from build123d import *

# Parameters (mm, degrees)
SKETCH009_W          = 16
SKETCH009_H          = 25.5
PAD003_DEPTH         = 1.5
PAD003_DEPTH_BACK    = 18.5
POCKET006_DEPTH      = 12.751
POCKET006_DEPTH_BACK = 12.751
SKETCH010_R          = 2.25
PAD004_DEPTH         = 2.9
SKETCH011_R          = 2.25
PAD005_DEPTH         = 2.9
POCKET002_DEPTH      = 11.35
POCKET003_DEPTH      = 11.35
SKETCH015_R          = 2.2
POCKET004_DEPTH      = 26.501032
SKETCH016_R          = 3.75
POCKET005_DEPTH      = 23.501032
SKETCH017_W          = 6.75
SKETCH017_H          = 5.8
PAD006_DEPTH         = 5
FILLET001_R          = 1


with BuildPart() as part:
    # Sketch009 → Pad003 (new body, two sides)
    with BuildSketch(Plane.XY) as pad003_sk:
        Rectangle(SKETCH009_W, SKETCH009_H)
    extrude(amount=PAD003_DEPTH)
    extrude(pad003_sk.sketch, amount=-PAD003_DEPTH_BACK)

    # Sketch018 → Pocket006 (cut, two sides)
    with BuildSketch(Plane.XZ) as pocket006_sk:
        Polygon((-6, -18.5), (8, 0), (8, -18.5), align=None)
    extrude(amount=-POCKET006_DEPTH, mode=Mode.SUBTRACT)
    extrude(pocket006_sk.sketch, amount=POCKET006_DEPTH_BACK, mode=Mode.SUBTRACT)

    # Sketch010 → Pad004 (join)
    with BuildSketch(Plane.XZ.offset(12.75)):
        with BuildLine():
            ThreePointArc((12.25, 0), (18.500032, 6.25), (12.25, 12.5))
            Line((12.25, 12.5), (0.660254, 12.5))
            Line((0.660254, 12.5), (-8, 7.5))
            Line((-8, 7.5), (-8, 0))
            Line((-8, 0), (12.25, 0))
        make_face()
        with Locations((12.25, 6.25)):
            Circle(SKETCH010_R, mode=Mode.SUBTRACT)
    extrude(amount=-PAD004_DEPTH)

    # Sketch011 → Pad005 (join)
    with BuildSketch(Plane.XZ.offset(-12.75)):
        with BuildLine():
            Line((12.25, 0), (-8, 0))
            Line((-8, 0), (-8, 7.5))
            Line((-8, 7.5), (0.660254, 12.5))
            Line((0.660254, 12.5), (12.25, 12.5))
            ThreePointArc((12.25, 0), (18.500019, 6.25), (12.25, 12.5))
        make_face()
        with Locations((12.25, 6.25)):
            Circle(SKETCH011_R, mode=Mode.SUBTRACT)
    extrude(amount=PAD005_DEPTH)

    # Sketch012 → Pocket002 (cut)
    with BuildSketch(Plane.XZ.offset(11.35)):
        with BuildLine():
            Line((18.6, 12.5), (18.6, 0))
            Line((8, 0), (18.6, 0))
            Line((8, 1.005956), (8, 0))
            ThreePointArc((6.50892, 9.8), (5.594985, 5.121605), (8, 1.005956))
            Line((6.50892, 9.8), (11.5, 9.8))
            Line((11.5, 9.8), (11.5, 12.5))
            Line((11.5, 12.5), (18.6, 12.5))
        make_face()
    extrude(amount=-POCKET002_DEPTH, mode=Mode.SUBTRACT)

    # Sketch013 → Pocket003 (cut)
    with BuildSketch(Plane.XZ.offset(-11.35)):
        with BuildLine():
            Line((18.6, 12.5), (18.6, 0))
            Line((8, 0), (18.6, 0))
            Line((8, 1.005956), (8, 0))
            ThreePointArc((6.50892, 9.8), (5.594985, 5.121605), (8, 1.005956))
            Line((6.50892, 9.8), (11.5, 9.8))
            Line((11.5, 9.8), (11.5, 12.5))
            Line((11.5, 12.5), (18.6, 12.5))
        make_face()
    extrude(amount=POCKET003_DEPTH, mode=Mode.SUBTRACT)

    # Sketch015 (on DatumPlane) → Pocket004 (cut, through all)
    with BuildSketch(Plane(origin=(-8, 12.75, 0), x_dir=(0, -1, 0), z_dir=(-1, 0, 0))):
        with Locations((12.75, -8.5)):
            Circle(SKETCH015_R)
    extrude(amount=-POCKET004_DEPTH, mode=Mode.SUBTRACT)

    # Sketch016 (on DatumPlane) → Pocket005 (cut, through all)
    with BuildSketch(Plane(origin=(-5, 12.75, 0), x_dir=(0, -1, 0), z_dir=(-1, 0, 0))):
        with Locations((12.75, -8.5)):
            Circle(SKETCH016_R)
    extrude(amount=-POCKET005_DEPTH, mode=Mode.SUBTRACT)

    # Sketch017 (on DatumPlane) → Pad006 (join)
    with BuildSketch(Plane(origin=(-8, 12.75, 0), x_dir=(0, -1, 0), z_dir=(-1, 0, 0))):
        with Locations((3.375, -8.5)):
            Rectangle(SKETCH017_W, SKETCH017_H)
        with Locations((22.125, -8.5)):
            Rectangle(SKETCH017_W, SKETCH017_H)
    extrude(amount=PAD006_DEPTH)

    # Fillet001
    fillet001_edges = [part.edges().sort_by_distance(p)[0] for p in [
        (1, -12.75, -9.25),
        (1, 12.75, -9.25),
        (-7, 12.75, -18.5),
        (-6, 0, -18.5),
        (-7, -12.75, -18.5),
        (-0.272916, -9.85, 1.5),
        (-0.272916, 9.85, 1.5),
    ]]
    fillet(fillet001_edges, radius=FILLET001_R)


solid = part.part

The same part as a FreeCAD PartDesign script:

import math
import FreeCAD as App
import Part
import Sketcher
Q = App.Units.Quantity


def edges_at(feature, points):
    """Names of the edges that pass closest to the given points."""
    edges = feature.Shape.Edges
    near = lambda p: min(range(len(edges)), key=lambda i: edges[i].distToShape(Part.Vertex(*p))[0])
    return sorted({f"Edge{near(p) + 1}" for p in points})


def add_polygon(sketch, points):
    """Adds a closed chain of lines whose ends are joined by coincident constraints."""
    first, n = sketch.GeometryCount, len(points)
    for a, b in zip(points, points[1:] + points[:1]):
        sketch.addGeometry(Part.LineSegment(App.Vector(*a, 0), App.Vector(*b, 0)), False)
    for i in range(n):
        sketch.addConstraint(Sketcher.Constraint("Coincident", first + i, 2, first + (i + 1) % n, 1))

doc = App.newDocument("Part")
body = doc.addObject("PartDesign::Body", "Body")

# Sketch on XY plane
sketch1 = body.newObject("Sketcher::SketchObject", "Sketch")
sketch1.AttachmentSupport = (doc.getObject("XY_Plane"), [""])
sketch1.MapMode = "FlatFace"
add_polygon(sketch1, [(-8, 13), (-8, -13), (8, -13), (8, 13)])  # lines 0-3
sketch1.addConstraint(Sketcher.Constraint("Vertical", 0))
sketch1.addConstraint(Sketcher.Constraint("Horizontal", 1))
sketch1.addConstraint(Sketcher.Constraint("Vertical", 2))
sketch1.addConstraint(Sketcher.Constraint("Horizontal", 3))
sketch1.addConstraint(Sketcher.Constraint("Symmetric", 0, 2, 2, 2, -1, 1))
sketch1.addConstraint(Sketcher.Constraint("DistanceX", 1, 1, 1, 2, 16.0))
sketch1.addConstraint(Sketcher.Constraint("DistanceY", 0, 2, 0, 1, 25.5))
pad1 = body.newObject("PartDesign::Pad", "Pad")
pad1.Profile = sketch1
pad1.Type = "TwoLengths"
pad1.Length = 1.5
pad1.Length2 = 18.5

# Sketch on XZ plane
sketch2 = body.newObject("Sketcher::SketchObject", "Sketch001")
sketch2.AttachmentSupport = (doc.getObject("XZ_Plane"), [""])
sketch2.MapMode = "FlatFace"
add_polygon(sketch2, [(8, 0), (-6, -18), (8, -18)])  # lines 0-2
sketch2.addConstraint(Sketcher.Constraint("Horizontal", 1))
sketch2.addConstraint(Sketcher.Constraint("Vertical", 2))
sketch2.addConstraint(Sketcher.Constraint("PointOnObject", 2, 2, -1))
sketch2.addConstraint(Sketcher.Constraint("DistanceX", 1, 1, 1, 2, 14.0))
sketch2.addConstraint(Sketcher.Constraint("DistanceY", 2, 1, 2, 2, 18.5))
sketch2.addConstraint(Sketcher.Constraint("DistanceX", 0, 2, -1, 1, 6.0))
pocket1 = body.newObject("PartDesign::Pocket", "Pocket")
pocket1.Profile = sketch2
pocket1.Type = "ThroughAll"
pocket1.Midplane = True

# Sketch on XZ plane
sketch3 = body.newObject("Sketcher::SketchObject", "Sketch002")
sketch3.AttachmentSupport = (doc.getObject("XZ_Plane"), [""])
sketch3.MapMode = "FlatFace"
sketch3.AttachmentOffset = App.Placement(App.Vector(0, 0, 12.75), App.Rotation())
sketch3.addGeometry(Part.ArcOfCircle(Part.Circle(App.Vector(12.3, 6.2, 0), App.Vector(0, 0, 1), 6.2), math.radians(-90), math.radians(90)), False)
sketch3.addGeometry(Part.LineSegment(App.Vector(12.2, 12.5, 0), App.Vector(0.7, 12.5, 0)), False)
sketch3.addGeometry(Part.LineSegment(App.Vector(0.7, 12.5, 0), App.Vector(-8, 7.5, 0)), False)
sketch3.addGeometry(Part.LineSegment(App.Vector(-8, 7.5, 0), App.Vector(-8, 0, 0)), False)
sketch3.addGeometry(Part.LineSegment(App.Vector(-8, 0, 0), App.Vector(12.2, 0, 0)), False)
sketch3.addGeometry(Part.Circle(App.Vector(12.2, 6.2, 0), App.Vector(0, 0, 1), 2.2), False)
sketch3.addConstraint(Sketcher.Constraint("Coincident", 0, 2, 1, 1))
sketch3.addConstraint(Sketcher.Constraint("Coincident", 1, 2, 2, 1))
sketch3.addConstraint(Sketcher.Constraint("Coincident", 2, 2, 3, 1))
sketch3.addConstraint(Sketcher.Constraint("Coincident", 3, 2, 4, 1))
sketch3.addConstraint(Sketcher.Constraint("Coincident", 4, 2, 0, 1))
sketch3.addConstraint(Sketcher.Constraint("Horizontal", 1))
sketch3.addConstraint(Sketcher.Constraint("Vertical", 3))
sketch3.addConstraint(Sketcher.Constraint("Horizontal", 4))
sketch3.addConstraint(Sketcher.Constraint("PointOnObject", 3, 2, -1))
sketch3.addConstraint(Sketcher.Constraint("Horizontal", 0, 3, 5, 3))
sketch3.addConstraint(Sketcher.Constraint("Vertical", 5, 3, 0, 2))
sketch3.addConstraint(Sketcher.Constraint("Vertical", 0, 2, 4, 2))
sketch3.addConstraint(Sketcher.Constraint("Diameter", 5, 4.5))
sketch3.addConstraint(Sketcher.Constraint("Angle", 2, Q("-150 deg")))
sketch3.addConstraint(Sketcher.Constraint("Radius", 0, 6.25))
sketch3.addConstraint(Sketcher.Constraint("Distance", 2, 10.0))
sketch3.addConstraint(Sketcher.Constraint("DistanceX", 2, 2, -1, 1, 8.0))
sketch3.addConstraint(Sketcher.Constraint("DistanceX", 4, 1, 4, 2, 20.25))
sketch3.addConstraint(Sketcher.Constraint("DistanceX", -1, 1, 0, 3, 12.250032))
pad2 = body.newObject("PartDesign::Pad", "Pad001")
pad2.Profile = sketch3
pad2.Length = 2.9
pad2.Reversed = True

# Sketch on XZ plane
sketch4 = body.newObject("Sketcher::SketchObject", "Sketch003")
sketch4.AttachmentSupport = (doc.getObject("XZ_Plane"), [""])
sketch4.MapMode = "FlatFace"
sketch4.AttachmentOffset = App.Placement(App.Vector(0, 0, -12.75), App.Rotation())
sketch4.addGeometry(Part.LineSegment(App.Vector(-8, 0, 0), App.Vector(12.2, 0, 0)), False)
sketch4.addGeometry(Part.ArcOfCircle(Part.Circle(App.Vector(12.3, 6.2, 0), App.Vector(0, 0, 1), 6.2), math.radians(-90), math.radians(90)), False)
sketch4.addGeometry(Part.LineSegment(App.Vector(12.2, 12.5, 0), App.Vector(0.7, 12.5, 0)), False)
sketch4.addGeometry(Part.LineSegment(App.Vector(0.7, 12.5, 0), App.Vector(-8, 7.5, 0)), False)
sketch4.addGeometry(Part.LineSegment(App.Vector(-8, 7.5, 0), App.Vector(-8, 0, 0)), False)
sketch4.addGeometry(Part.Circle(App.Vector(12.2, 6.2, 0), App.Vector(0, 0, 1), 2.2), False)
sketch4.addConstraint(Sketcher.Constraint("Coincident", 0, 2, 1, 1))
sketch4.addConstraint(Sketcher.Constraint("Coincident", 1, 2, 2, 1))
sketch4.addConstraint(Sketcher.Constraint("Coincident", 2, 2, 3, 1))
sketch4.addConstraint(Sketcher.Constraint("Coincident", 3, 2, 4, 1))
sketch4.addConstraint(Sketcher.Constraint("Coincident", 4, 2, 0, 1))
sketch4.addConstraint(Sketcher.Constraint("Horizontal", 0))
sketch4.addConstraint(Sketcher.Constraint("Horizontal", 2))
sketch4.addConstraint(Sketcher.Constraint("Vertical", 4))
sketch4.addConstraint(Sketcher.Constraint("PointOnObject", 0, 2, -1))
sketch4.addConstraint(Sketcher.Constraint("Horizontal", 1, 3, 5, 3))
sketch4.addConstraint(Sketcher.Constraint("Vertical", 5, 3, 0, 2))
sketch4.addConstraint(Sketcher.Constraint("Vertical", 0, 2, 1, 2))
sketch4.addConstraint(Sketcher.Constraint("Diameter", 5, 4.5))
sketch4.addConstraint(Sketcher.Constraint("Angle", 3, Q("-150 deg")))
sketch4.addConstraint(Sketcher.Constraint("Radius", 1, 6.25))
sketch4.addConstraint(Sketcher.Constraint("Distance", 3, 10.0))
sketch4.addConstraint(Sketcher.Constraint("DistanceX", 3, 2, -1, 1, 8.0))
sketch4.addConstraint(Sketcher.Constraint("DistanceX", 0, 1, 0, 2, 20.25))
sketch4.addConstraint(Sketcher.Constraint("DistanceX", -1, 1, 1, 3, 12.250019))
pad3 = body.newObject("PartDesign::Pad", "Pad002")
pad3.Profile = sketch4
pad3.Length = 2.9

# Sketch on XZ plane
sketch5 = body.newObject("Sketcher::SketchObject", "Sketch004")
sketch5.AttachmentSupport = (doc.getObject("XZ_Plane"), [""])
sketch5.MapMode = "FlatFace"
sketch5.AttachmentOffset = App.Placement(App.Vector(0, 0, 11.35), App.Rotation())
sketch5.addGeometry(Part.LineSegment(App.Vector(18.6, 0, 0), App.Vector(18.6, 12.5, 0)), False)
sketch5.addGeometry(Part.LineSegment(App.Vector(18.6, 12.5, 0), App.Vector(11.5, 12.5, 0)), False)
sketch5.addGeometry(Part.LineSegment(App.Vector(11.5, 12.5, 0), App.Vector(11.5, 9.8, 0)), False)
sketch5.addGeometry(Part.LineSegment(App.Vector(11.5, 9.8, 0), App.Vector(6.5, 9.8, 0)), False)
sketch5.addGeometry(Part.ArcOfCircle(Part.Circle(App.Vector(12.2, 6.3, 0), App.Vector(0, 0, 1), 6.7), math.radians(148), math.radians(231)), False)
sketch5.addGeometry(Part.LineSegment(App.Vector(8, 1, 0), App.Vector(8, 0, 0)), False)
sketch5.addGeometry(Part.LineSegment(App.Vector(8, 0, 0), App.Vector(18.6, 0, 0)), False)
sketch5.addConstraint(Sketcher.Constraint("Coincident", 0, 2, 1, 1))
sketch5.addConstraint(Sketcher.Constraint("Coincident", 1, 2, 2, 1))
sketch5.addConstraint(Sketcher.Constraint("Coincident", 2, 2, 3, 1))
sketch5.addConstraint(Sketcher.Constraint("Coincident", 3, 2, 4, 1))
sketch5.addConstraint(Sketcher.Constraint("Coincident", 4, 2, 5, 1))
sketch5.addConstraint(Sketcher.Constraint("Coincident", 5, 2, 6, 1))
sketch5.addConstraint(Sketcher.Constraint("Coincident", 6, 2, 0, 1))
sketch5.addConstraint(Sketcher.Constraint("Vertical", 0))
sketch5.addConstraint(Sketcher.Constraint("Horizontal", 1))
sketch5.addConstraint(Sketcher.Constraint("Vertical", 2))
sketch5.addConstraint(Sketcher.Constraint("Horizontal", 3))
sketch5.addConstraint(Sketcher.Constraint("Vertical", 5))
sketch5.addConstraint(Sketcher.Constraint("Horizontal", 6))
sketch5.addConstraint(Sketcher.Constraint("PointOnObject", 5, 2, -1))
sketch5.addConstraint(Sketcher.Constraint("Radius", 4, 6.75))
sketch5.addConstraint(Sketcher.Constraint("DistanceX", 1, 2, 1, 1, 7.1))
sketch5.addConstraint(Sketcher.Constraint("DistanceX", 6, 1, 6, 2, 10.6))
sketch5.addConstraint(Sketcher.Constraint("DistanceY", 0, 1, 0, 2, 12.5))
sketch5.addConstraint(Sketcher.Constraint("DistanceY", 2, 2, 2, 1, 2.7))
sketch5.addConstraint(Sketcher.Constraint("DistanceX", -1, 1, 4, 2, 8.0))
sketch5.addConstraint(Sketcher.Constraint("DistanceX", -1, 1, 4, 3, 12.25))
sketch5.addConstraint(Sketcher.Constraint("DistanceY", -1, 1, 4, 3, 6.25))
pocket2 = body.newObject("PartDesign::Pocket", "Pocket001")
pocket2.Profile = sketch5
pocket2.Length = 11.35

# Sketch on XZ plane
sketch6 = body.newObject("Sketcher::SketchObject", "Sketch005")
sketch6.AttachmentSupport = (doc.getObject("XZ_Plane"), [""])
sketch6.MapMode = "FlatFace"
sketch6.AttachmentOffset = App.Placement(App.Vector(0, 0, -11.35), App.Rotation())
sketch6.addGeometry(Part.LineSegment(App.Vector(18.6, 0, 0), App.Vector(18.6, 12.5, 0)), False)
sketch6.addGeometry(Part.LineSegment(App.Vector(18.6, 12.5, 0), App.Vector(11.5, 12.5, 0)), False)
sketch6.addGeometry(Part.LineSegment(App.Vector(11.5, 12.5, 0), App.Vector(11.5, 9.8, 0)), False)
sketch6.addGeometry(Part.LineSegment(App.Vector(11.5, 9.8, 0), App.Vector(6.5, 9.8, 0)), False)
sketch6.addGeometry(Part.ArcOfCircle(Part.Circle(App.Vector(12.2, 6.3, 0), App.Vector(0, 0, 1), 6.7), math.radians(148), math.radians(231)), False)
sketch6.addGeometry(Part.LineSegment(App.Vector(8, 1, 0), App.Vector(8, 0, 0)), False)
sketch6.addGeometry(Part.LineSegment(App.Vector(8, 0, 0), App.Vector(18.6, 0, 0)), False)
sketch6.addConstraint(Sketcher.Constraint("Coincident", 0, 2, 1, 1))
sketch6.addConstraint(Sketcher.Constraint("Coincident", 1, 2, 2, 1))
sketch6.addConstraint(Sketcher.Constraint("Coincident", 2, 2, 3, 1))
sketch6.addConstraint(Sketcher.Constraint("Coincident", 3, 2, 4, 1))
sketch6.addConstraint(Sketcher.Constraint("Coincident", 4, 2, 5, 1))
sketch6.addConstraint(Sketcher.Constraint("Coincident", 5, 2, 6, 1))
sketch6.addConstraint(Sketcher.Constraint("Coincident", 6, 2, 0, 1))
sketch6.addConstraint(Sketcher.Constraint("Vertical", 0))
sketch6.addConstraint(Sketcher.Constraint("Horizontal", 1))
sketch6.addConstraint(Sketcher.Constraint("Vertical", 2))
sketch6.addConstraint(Sketcher.Constraint("Horizontal", 3))
sketch6.addConstraint(Sketcher.Constraint("Vertical", 5))
sketch6.addConstraint(Sketcher.Constraint("Horizontal", 6))
sketch6.addConstraint(Sketcher.Constraint("PointOnObject", 5, 2, -1))
sketch6.addConstraint(Sketcher.Constraint("Radius", 4, 6.75))
sketch6.addConstraint(Sketcher.Constraint("DistanceX", 1, 2, 1, 1, 7.1))
sketch6.addConstraint(Sketcher.Constraint("DistanceX", 6, 1, 6, 2, 10.6))
sketch6.addConstraint(Sketcher.Constraint("DistanceY", 0, 1, 0, 2, 12.5))
sketch6.addConstraint(Sketcher.Constraint("DistanceY", 2, 2, 2, 1, 2.7))
sketch6.addConstraint(Sketcher.Constraint("DistanceX", -1, 1, 4, 2, 8.0))
sketch6.addConstraint(Sketcher.Constraint("DistanceX", -1, 1, 4, 3, 12.25))
sketch6.addConstraint(Sketcher.Constraint("DistanceY", -1, 1, 4, 3, 6.25))
pocket3 = body.newObject("PartDesign::Pocket", "Pocket002")
pocket3.Profile = sketch6
pocket3.Length = 11.35
pocket3.Reversed = True

# Sketch on YZ plane
sketch7 = body.newObject("Sketcher::SketchObject", "Sketch006")
sketch7.AttachmentSupport = (doc.getObject("YZ_Plane"), [""])
sketch7.MapMode = "FlatFace"
sketch7.AttachmentOffset = App.Placement(App.Vector(0, 0, -8), App.Rotation())
sketch7.addGeometry(Part.Circle(App.Vector(0, -8.5, 0), App.Vector(0, 0, 1), 2.2), False)
sketch7.addConstraint(Sketcher.Constraint("PointOnObject", 0, 3, -2))
sketch7.addConstraint(Sketcher.Constraint("Diameter", 0, 4.4))
sketch7.addConstraint(Sketcher.Constraint("DistanceY", 0, 3, -1, 1, 8.5))
pocket4 = body.newObject("PartDesign::Pocket", "Pocket003")
pocket4.Profile = sketch7
pocket4.Type = "ThroughAll"
pocket4.Reversed = True

# Sketch on YZ plane
sketch8 = body.newObject("Sketcher::SketchObject", "Sketch007")
sketch8.AttachmentSupport = (doc.getObject("YZ_Plane"), [""])
sketch8.MapMode = "FlatFace"
sketch8.AttachmentOffset = App.Placement(App.Vector(0, 0, -5), App.Rotation())
sketch8.addGeometry(Part.Circle(App.Vector(0, -8.5, 0), App.Vector(0, 0, 1), 3.8), False)
sketch8.addConstraint(Sketcher.Constraint("PointOnObject", 0, 3, -2))
sketch8.addConstraint(Sketcher.Constraint("Diameter", 0, 7.5))
sketch8.addConstraint(Sketcher.Constraint("DistanceY", 0, 3, -1, 1, 8.5))
pocket5 = body.newObject("PartDesign::Pocket", "Pocket004")
pocket5.Profile = sketch8
pocket5.Type = "ThroughAll"
pocket5.Reversed = True

# Sketch on YZ plane
sketch9 = body.newObject("Sketcher::SketchObject", "Sketch008")
sketch9.AttachmentSupport = (doc.getObject("YZ_Plane"), [""])
sketch9.MapMode = "FlatFace"
sketch9.AttachmentOffset = App.Placement(App.Vector(0, 0, -8), App.Rotation())
add_polygon(sketch9, [(13, -6), (13, -11), (6, -11), (6, -6)])  # lines 0-3
add_polygon(sketch9, [(-6, -6), (-6, -11), (-13, -11), (-13, -6)])  # lines 4-7
sketch9.addConstraint(Sketcher.Constraint("Vertical", 0))
sketch9.addConstraint(Sketcher.Constraint("Horizontal", 1))
sketch9.addConstraint(Sketcher.Constraint("Vertical", 2))
sketch9.addConstraint(Sketcher.Constraint("Horizontal", 3))
sketch9.addConstraint(Sketcher.Constraint("Vertical", 4))
sketch9.addConstraint(Sketcher.Constraint("Horizontal", 5))
sketch9.addConstraint(Sketcher.Constraint("Vertical", 6))
sketch9.addConstraint(Sketcher.Constraint("Horizontal", 7))
sketch9.addConstraint(Sketcher.Constraint("Symmetric", 1, 2, 4, 2, -2))
sketch9.addConstraint(Sketcher.Constraint("Symmetric", 3, 2, 6, 2, -2))
sketch9.addConstraint(Sketcher.Constraint("DistanceY", 0, 2, 0, 1, 5.8))
sketch9.addConstraint(Sketcher.Constraint("DistanceX", -1, 1, 1, 2, 6.0))
sketch9.addConstraint(Sketcher.Constraint("DistanceX", 1, 2, 1, 1, 6.75))
sketch9.addConstraint(Sketcher.Constraint("DistanceY", 0, 2, -1, 1, 11.4))
pad4 = body.newObject("PartDesign::Pad", "Pad003")
pad4.Profile = sketch9
pad4.Length = 5
pad4.Reversed = True
doc.recompute()

fillet = body.newObject("PartDesign::Fillet", "Fillet")
fillet.Base = (pad4, edges_at(pad4, [
    (1, -12.75, -9.25),
    (1, 12.75, -9.25),
    (-7, 12.75, -18.5),
    (-6, 0, -18.5),
    (-7, -12.75, -18.5),
    (-0.273, -9.85, 1.5),
    (-0.273, 9.85, 1.5),
]))
fillet.Radius = 1

doc.recompute()
